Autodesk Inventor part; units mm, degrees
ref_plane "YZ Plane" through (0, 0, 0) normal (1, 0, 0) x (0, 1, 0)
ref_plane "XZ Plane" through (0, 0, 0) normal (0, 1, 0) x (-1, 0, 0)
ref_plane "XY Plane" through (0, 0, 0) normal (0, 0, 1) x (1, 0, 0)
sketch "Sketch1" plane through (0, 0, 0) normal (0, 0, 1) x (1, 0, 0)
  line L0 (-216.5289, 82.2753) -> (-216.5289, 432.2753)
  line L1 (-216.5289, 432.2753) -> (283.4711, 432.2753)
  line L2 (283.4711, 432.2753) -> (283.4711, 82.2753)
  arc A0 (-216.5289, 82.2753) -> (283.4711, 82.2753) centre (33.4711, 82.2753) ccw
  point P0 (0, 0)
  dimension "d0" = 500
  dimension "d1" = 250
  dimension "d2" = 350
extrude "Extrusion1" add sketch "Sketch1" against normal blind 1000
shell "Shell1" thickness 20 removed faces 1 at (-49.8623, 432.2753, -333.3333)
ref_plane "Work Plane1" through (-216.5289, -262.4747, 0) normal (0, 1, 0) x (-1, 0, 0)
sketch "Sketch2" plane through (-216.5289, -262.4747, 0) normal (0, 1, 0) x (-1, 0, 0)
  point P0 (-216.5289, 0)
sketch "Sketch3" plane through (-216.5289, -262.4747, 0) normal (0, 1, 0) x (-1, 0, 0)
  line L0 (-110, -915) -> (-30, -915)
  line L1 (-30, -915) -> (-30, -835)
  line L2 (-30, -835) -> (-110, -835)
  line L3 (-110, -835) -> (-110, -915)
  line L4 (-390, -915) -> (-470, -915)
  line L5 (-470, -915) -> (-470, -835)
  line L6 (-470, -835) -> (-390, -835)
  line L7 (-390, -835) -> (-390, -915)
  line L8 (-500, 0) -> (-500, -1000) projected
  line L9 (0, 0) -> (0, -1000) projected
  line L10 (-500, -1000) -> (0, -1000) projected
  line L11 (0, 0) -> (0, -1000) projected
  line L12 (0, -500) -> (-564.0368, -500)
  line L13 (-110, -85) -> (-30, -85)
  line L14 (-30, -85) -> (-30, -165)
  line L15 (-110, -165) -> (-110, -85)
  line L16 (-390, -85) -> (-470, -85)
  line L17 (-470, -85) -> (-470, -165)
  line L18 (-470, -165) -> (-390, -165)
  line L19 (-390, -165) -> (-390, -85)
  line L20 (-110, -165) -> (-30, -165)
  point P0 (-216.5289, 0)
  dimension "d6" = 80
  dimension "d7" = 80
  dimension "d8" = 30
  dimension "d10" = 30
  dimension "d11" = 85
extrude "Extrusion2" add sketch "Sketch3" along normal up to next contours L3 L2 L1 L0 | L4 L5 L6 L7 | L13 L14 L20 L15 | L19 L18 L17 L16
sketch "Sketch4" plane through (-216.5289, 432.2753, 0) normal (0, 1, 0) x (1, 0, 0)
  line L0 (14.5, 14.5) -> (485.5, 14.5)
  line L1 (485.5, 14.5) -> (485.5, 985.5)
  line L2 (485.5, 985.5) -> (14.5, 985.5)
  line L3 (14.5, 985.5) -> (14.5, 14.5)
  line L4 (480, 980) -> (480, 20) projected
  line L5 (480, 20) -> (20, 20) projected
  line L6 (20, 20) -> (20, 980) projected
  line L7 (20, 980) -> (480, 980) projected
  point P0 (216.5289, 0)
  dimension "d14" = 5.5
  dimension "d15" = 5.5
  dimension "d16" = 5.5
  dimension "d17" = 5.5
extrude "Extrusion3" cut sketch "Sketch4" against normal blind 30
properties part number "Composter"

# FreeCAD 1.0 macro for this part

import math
import FreeCAD as App
import Part
import Sketcher
from FreeCAD import Vector


def faces_at(feature, points):
    """Names of the faces that lie closest to the given points."""
    faces = feature.Shape.Faces
    near = lambda p: min(range(len(faces)), key=lambda i: faces[i].distToShape(Part.Vertex(*p))[0])
    return sorted({f"Face{near(p) + 1}" for p in points})


def add_polygon(sketch, points):
    """Adds a closed chain of lines whose ends are joined by coincident constraints."""
    first, n = sketch.GeometryCount, len(points)
    for a, b in zip(points, points[1:] + points[:1]):
        sketch.addGeometry(Part.LineSegment(App.Vector(*a, 0), App.Vector(*b, 0)), False)
    for i in range(n):
        sketch.addConstraint(Sketcher.Constraint("Coincident", first + i, 2, first + (i + 1) % n, 1))

doc = App.newDocument("Part")
body = doc.addObject("PartDesign::Body", "Body")

# Sketch on XY plane
sketch1 = body.newObject("Sketcher::SketchObject", "Sketch")
sketch1.AttachmentSupport = (doc.getObject("XY_Plane"), [""])
sketch1.MapMode = "FlatFace"
sketch1.addGeometry([
    Part.LineSegment(Vector(-217, 432, 0), Vector(-217, 82, 0)),
    Part.ArcOfCircle(Part.Circle(Vector(33, 82, 0), Vector(0, 0, 1), 250), math.radians(180), math.radians(360)),
    Part.LineSegment(Vector(283, 82, 0), Vector(283, 432, 0)),
    Part.LineSegment(Vector(283, 432, 0), Vector(-217, 432, 0)),
], False)
sketch1.addConstraint([
    Sketcher.Constraint("Tangent", 0, 2, 1, 1),
    Sketcher.Constraint("Tangent", 1, 2, 2, 1),
    Sketcher.Constraint("Coincident", 2, 2, 3, 1),
    Sketcher.Constraint("Coincident", 3, 2, 0, 1),
    Sketcher.Constraint("Vertical", 0),
    Sketcher.Constraint("Vertical", 2),
    Sketcher.Constraint("Horizontal", 3),
    Sketcher.Constraint("Radius", 1, 250.0),
    Sketcher.Constraint("DistanceY", 0, 2, 0, 1, 350.0),
    Sketcher.Constraint("DistanceX", -1, 1, 1, 3, 33.471),
    Sketcher.Constraint("DistanceY", -1, 1, 1, 3, 82.2753),
])
pad1 = body.newObject("PartDesign::Pad", "Pad")
pad1.Profile = sketch1
pad1.Length = 1000
pad1.Reversed = True
doc.recompute()

thickness = body.newObject("PartDesign::Thickness", "Thickness")
thickness.Base = (pad1, faces_at(pad1, [(-49.862, 432.275, -333.333)]))
thickness.Value = 20
thickness.Reversed = True
thickness.Join = "Intersection"

# Sketch on XZ plane
sketch2 = body.newObject("Sketcher::SketchObject", "Sketch001")
sketch2.AttachmentSupport = (doc.getObject("XZ_Plane"), [""])
sketch2.MapMode = "FlatFace"
sketch2.AttachmentOffset = App.Placement(Vector(0, 0, 262.4747), App.Rotation())
add_polygon(sketch2, [(-107, -835), (-107, -915), (-187, -915), (-187, -835)])  # lines 0-3
add_polygon(sketch2, [(253, -915), (173, -915), (173, -835), (253, -835)])  # lines 4-7
add_polygon(sketch2, [(-187, -85), (-107, -85), (-107, -165), (-187, -165)])  # lines 8-11
add_polygon(sketch2, [(173, -165), (173, -85), (253, -85), (253, -165)])  # lines 12-15
sketch2.addConstraint([
    Sketcher.Constraint("Vertical", 0),
    Sketcher.Constraint("Horizontal", 1),
    Sketcher.Constraint("Vertical", 2),
    Sketcher.Constraint("Horizontal", 3),
    Sketcher.Constraint("Horizontal", 4),
    Sketcher.Constraint("Vertical", 5),
    Sketcher.Constraint("Horizontal", 6),
    Sketcher.Constraint("Vertical", 7),
    Sketcher.Constraint("Horizontal", 8),
    Sketcher.Constraint("Vertical", 9),
    Sketcher.Constraint("Horizontal", 10),
    Sketcher.Constraint("Vertical", 11),
    Sketcher.Constraint("Vertical", 12),
    Sketcher.Constraint("Horizontal", 13),
    Sketcher.Constraint("Vertical", 14),
    Sketcher.Constraint("Horizontal", 15),
    Sketcher.Constraint("Horizontal", 1, 2, 4, 2),
    Sketcher.Constraint("Horizontal", 3, 2, 5, 2),
    Sketcher.Constraint("Horizontal", 11, 2, 12, 2),
    Sketcher.Constraint("Horizontal", 10, 2, 14, 2),
    Sketcher.Constraint("Vertical", 3, 2, 8, 2),
    Sketcher.Constraint("Vertical", 2, 2, 10, 2),
    Sketcher.Constraint("Vertical", 5, 2, 12, 2),
    Sketcher.Constraint("Vertical", 7, 2, 13, 2),
    Sketcher.Constraint("Equal", 3, 4),
    Sketcher.Constraint("Equal", 15, 0),
    Sketcher.Constraint("Equal", 7, 9),
    Sketcher.Constraint("DistanceX", 1, 2, 1, 1, 80.0),
    Sketcher.Constraint("DistanceY", 8, 2, -1, 1, 85.0),
    Sketcher.Constraint("DistanceY", 0, 2, -1, 1, 915.0),
    Sketcher.Constraint("DistanceX", 0, 2, 4, 2, 280.0),
    Sketcher.Constraint("DistanceX", 0, 2, -1, 1, 106.529),
])
pad2 = body.newObject("PartDesign::Pad", "Pad001")
pad2.Profile = sketch2
pad2.Type = "UpToFirst"
pad2.Reversed = True

# Sketch on XZ plane
sketch3 = body.newObject("Sketcher::SketchObject", "Sketch002")
sketch3.AttachmentSupport = (doc.getObject("XZ_Plane"), [""])
sketch3.MapMode = "FlatFace"
sketch3.AttachmentOffset = App.Placement(Vector(0, 0, -432.2753), App.Rotation())
add_polygon(sketch3, [(-202, -986), (-202, -14), (269, -14), (269, -986)])  # lines 0-3
add_polygon(sketch3, [(-197, -980), (263, -980), (263, -20), (-197, -20)])  # lines 4-7
sketch3.addConstraint([
    Sketcher.Constraint("Vertical", 0),
    Sketcher.Constraint("Horizontal", 1),
    Sketcher.Constraint("Vertical", 2),
    Sketcher.Constraint("Horizontal", 3),
    Sketcher.Constraint("Horizontal", 4),
    Sketcher.Constraint("Vertical", 5),
    Sketcher.Constraint("Horizontal", 6),
    Sketcher.Constraint("Vertical", 7),
    Sketcher.Constraint("DistanceX", 4, 2, 2, 2, 5.5),
    Sketcher.Constraint("DistanceY", 2, 2, 4, 2, 5.5),
    Sketcher.Constraint("DistanceY", 5, 2, 1, 2, 5.5),
    Sketcher.Constraint("DistanceX", 0, 2, 6, 2, 5.5),
    Sketcher.Constraint("DistanceX", 1, 1, 1, 2, 471.0),
    Sketcher.Constraint("DistanceY", 0, 1, 0, 2, 971.0),
    Sketcher.Constraint("DistanceY", 4, 2, -1, 1, 980.0),
    Sketcher.Constraint("DistanceX", 0, 2, -1, 1, 202.029),
])
pocket1 = body.newObject("PartDesign::Pocket", "Pocket")
pocket1.Profile = sketch3
pocket1.Length = 30
pocket1.Reversed = True

doc.recompute()
